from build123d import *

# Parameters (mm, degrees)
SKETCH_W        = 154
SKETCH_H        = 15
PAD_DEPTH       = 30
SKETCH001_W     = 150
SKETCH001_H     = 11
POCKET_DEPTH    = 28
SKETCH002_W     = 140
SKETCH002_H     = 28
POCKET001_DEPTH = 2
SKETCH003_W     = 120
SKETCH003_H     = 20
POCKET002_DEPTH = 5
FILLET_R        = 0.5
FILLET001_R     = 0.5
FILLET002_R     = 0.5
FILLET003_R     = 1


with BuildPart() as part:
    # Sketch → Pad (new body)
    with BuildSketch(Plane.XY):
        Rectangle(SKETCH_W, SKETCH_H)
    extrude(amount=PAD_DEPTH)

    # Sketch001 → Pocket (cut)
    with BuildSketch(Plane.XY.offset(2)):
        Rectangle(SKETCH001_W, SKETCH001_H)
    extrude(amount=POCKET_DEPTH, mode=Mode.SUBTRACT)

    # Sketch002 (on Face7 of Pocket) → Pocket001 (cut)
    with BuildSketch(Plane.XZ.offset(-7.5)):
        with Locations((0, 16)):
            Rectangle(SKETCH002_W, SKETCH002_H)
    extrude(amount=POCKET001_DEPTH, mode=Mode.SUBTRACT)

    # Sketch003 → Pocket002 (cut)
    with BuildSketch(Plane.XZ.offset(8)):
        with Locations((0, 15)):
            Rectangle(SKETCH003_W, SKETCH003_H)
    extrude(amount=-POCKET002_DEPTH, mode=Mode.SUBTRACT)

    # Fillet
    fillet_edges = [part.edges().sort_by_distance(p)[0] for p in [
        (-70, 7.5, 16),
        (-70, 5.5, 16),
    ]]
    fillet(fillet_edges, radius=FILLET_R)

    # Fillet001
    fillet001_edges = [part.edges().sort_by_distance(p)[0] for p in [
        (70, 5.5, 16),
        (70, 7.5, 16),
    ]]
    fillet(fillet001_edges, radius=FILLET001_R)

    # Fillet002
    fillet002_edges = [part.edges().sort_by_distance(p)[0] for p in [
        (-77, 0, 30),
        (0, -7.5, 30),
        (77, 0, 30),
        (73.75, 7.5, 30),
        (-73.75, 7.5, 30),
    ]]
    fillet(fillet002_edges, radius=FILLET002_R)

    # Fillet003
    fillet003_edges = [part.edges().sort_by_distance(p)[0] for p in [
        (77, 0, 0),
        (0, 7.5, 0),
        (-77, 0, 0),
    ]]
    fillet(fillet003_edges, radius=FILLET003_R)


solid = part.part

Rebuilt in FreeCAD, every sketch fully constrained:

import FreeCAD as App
import Part
import Sketcher

V = App.Vector
Q = App.Units.Quantity


def edges_at(feature, points):
    """Names of the edges that pass closest to the given points."""
    edges = feature.Shape.Edges
    near = lambda p: min(range(len(edges)), key=lambda i: edges[i].distToShape(Part.Vertex(*p))[0])
    return sorted({f"Edge{near(p) + 1}" for p in points})

doc = App.newDocument("Part")
body = doc.addObject("PartDesign::Body", "Body")

# Sketch on XY plane
sketch1 = body.newObject("Sketcher::SketchObject", "Sketch")
sketch1.AttachmentSupport = (doc.getObject("XY_Plane"), [""])
sketch1.MapMode = "FlatFace"
sketch1.addGeometry(Part.LineSegment(V(-77, 7.5, 0), V(-77, -7.5, 0)), False)
sketch1.addGeometry(Part.LineSegment(V(-77, -7.5, 0), V(77, -7.5, 0)), False)
sketch1.addGeometry(Part.LineSegment(V(77, -7.5, 0), V(77, 7.5, 0)), False)
sketch1.addGeometry(Part.LineSegment(V(77, 7.5, 0), V(-77, 7.5, 0)), False)
sketch1.addConstraint(Sketcher.Constraint("Coincident", 0, 2, 1, 1))
sketch1.addConstraint(Sketcher.Constraint("Coincident", 1, 2, 2, 1))
sketch1.addConstraint(Sketcher.Constraint("Coincident", 2, 2, 3, 1))
sketch1.addConstraint(Sketcher.Constraint("Coincident", 3, 2, 0, 1))
sketch1.addConstraint(Sketcher.Constraint("Vertical", 0))
sketch1.addConstraint(Sketcher.Constraint("Horizontal", 1))
sketch1.addConstraint(Sketcher.Constraint("Vertical", 2))
sketch1.addConstraint(Sketcher.Constraint("Horizontal", 3))
sketch1.addConstraint(Sketcher.Constraint("Symmetric", 0, 2, 2, 2, -1, 1))
sketch1.addConstraint(Sketcher.Constraint("DistanceX", 1, 1, 1, 2, Q("154 mm")))
sketch1.addConstraint(Sketcher.Constraint("DistanceY", 0, 2, 0, 1, Q("15 mm")))
pad1 = body.newObject("PartDesign::Pad", "Pad")
pad1.Profile = sketch1
pad1.Length = 30

# Sketch on XY plane
sketch2 = body.newObject("Sketcher::SketchObject", "Sketch001")
sketch2.AttachmentSupport = (doc.getObject("XY_Plane"), [""])
sketch2.MapMode = "FlatFace"
sketch2.AttachmentOffset = App.Placement(V(0, 0, 2), App.Rotation())
sketch2.addGeometry(Part.LineSegment(V(-75, 5.5, 0), V(-75, -5.5, 0)), False)
sketch2.addGeometry(Part.LineSegment(V(-75, -5.5, 0), V(75, -5.5, 0)), False)
sketch2.addGeometry(Part.LineSegment(V(75, -5.5, 0), V(75, 5.5, 0)), False)
sketch2.addGeometry(Part.LineSegment(V(75, 5.5, 0), V(-75, 5.5, 0)), False)
sketch2.addConstraint(Sketcher.Constraint("Coincident", 0, 2, 1, 1))
sketch2.addConstraint(Sketcher.Constraint("Coincident", 1, 2, 2, 1))
sketch2.addConstraint(Sketcher.Constraint("Coincident", 2, 2, 3, 1))
sketch2.addConstraint(Sketcher.Constraint("Coincident", 3, 2, 0, 1))
sketch2.addConstraint(Sketcher.Constraint("Vertical", 0))
sketch2.addConstraint(Sketcher.Constraint("Horizontal", 1))
sketch2.addConstraint(Sketcher.Constraint("Vertical", 2))
sketch2.addConstraint(Sketcher.Constraint("Horizontal", 3))
sketch2.addConstraint(Sketcher.Constraint("Symmetric", 0, 2, 2, 2, -1, 1))
sketch2.addConstraint(Sketcher.Constraint("DistanceX", 1, 1, 1, 2, Q("150 mm")))
sketch2.addConstraint(Sketcher.Constraint("DistanceY", 0, 2, 0, 1, Q("11 mm")))
pocket1 = body.newObject("PartDesign::Pocket", "Pocket")
pocket1.Profile = sketch2
pocket1.Length = 28
pocket1.Reversed = True

# Sketch on XZ plane
sketch3 = body.newObject("Sketcher::SketchObject", "Sketch002")
sketch3.AttachmentSupport = (doc.getObject("XZ_Plane"), [""])
sketch3.MapMode = "FlatFace"
sketch3.AttachmentOffset = App.Placement(V(0, 0, -7.5), App.Rotation())
sketch3.addGeometry(Part.LineSegment(V(-70, 30, 0), V(-70, 2, 0)), False)
sketch3.addGeometry(Part.LineSegment(V(-70, 2, 0), V(70, 2, 0)), False)
sketch3.addGeometry(Part.LineSegment(V(70, 2, 0), V(70, 30, 0)), False)
sketch3.addGeometry(Part.LineSegment(V(70, 30, 0), V(-70, 30, 0)), False)
sketch3.addConstraint(Sketcher.Constraint("Coincident", 0, 2, 1, 1))
sketch3.addConstraint(Sketcher.Constraint("Coincident", 1, 2, 2, 1))
sketch3.addConstraint(Sketcher.Constraint("Coincident", 2, 2, 3, 1))
sketch3.addConstraint(Sketcher.Constraint("Coincident", 3, 2, 0, 1))
sketch3.addConstraint(Sketcher.Constraint("Vertical", 0))
sketch3.addConstraint(Sketcher.Constraint("Horizontal", 1))
sketch3.addConstraint(Sketcher.Constraint("Vertical", 2))
sketch3.addConstraint(Sketcher.Constraint("Horizontal", 3))
sketch3.addConstraint(Sketcher.Constraint("DistanceX", 1, 1, 1, 2, Q("140 mm")))
sketch3.addConstraint(Sketcher.Constraint("DistanceY", 0, 2, 0, 1, Q("28 mm")))
sketch3.addConstraint(Sketcher.Constraint("DistanceX", 0, 2, -1, 1, Q("70 mm")))
sketch3.addConstraint(Sketcher.Constraint("DistanceY", -1, 1, 0, 2, Q("2 mm")))
pocket2 = body.newObject("PartDesign::Pocket", "Pocket001")
pocket2.Profile = sketch3
pocket2.Length = 2
pocket2.Reversed = True

# Sketch on XZ plane
sketch4 = body.newObject("Sketcher::SketchObject", "Sketch003")
sketch4.AttachmentSupport = (doc.getObject("XZ_Plane"), [""])
sketch4.MapMode = "FlatFace"
sketch4.AttachmentOffset = App.Placement(V(0, 0, 8), App.Rotation())
sketch4.addGeometry(Part.LineSegment(V(-60, 25, 0), V(-60, 5, 0)), False)
sketch4.addGeometry(Part.LineSegment(V(-60, 5, 0), V(60, 5, 0)), False)
sketch4.addGeometry(Part.LineSegment(V(60, 5, 0), V(60, 25, 0)), False)
sketch4.addGeometry(Part.LineSegment(V(60, 25, 0), V(-60, 25, 0)), False)
sketch4.addConstraint(Sketcher.Constraint("Coincident", 0, 2, 1, 1))
sketch4.addConstraint(Sketcher.Constraint("Coincident", 1, 2, 2, 1))
sketch4.addConstraint(Sketcher.Constraint("Coincident", 2, 2, 3, 1))
sketch4.addConstraint(Sketcher.Constraint("Coincident", 3, 2, 0, 1))
sketch4.addConstraint(Sketcher.Constraint("Vertical", 0))
sketch4.addConstraint(Sketcher.Constraint("Horizontal", 1))
sketch4.addConstraint(Sketcher.Constraint("Vertical", 2))
sketch4.addConstraint(Sketcher.Constraint("Horizontal", 3))
sketch4.addConstraint(Sketcher.Constraint("DistanceX", 1, 1, 1, 2, Q("120 mm")))
sketch4.addConstraint(Sketcher.Constraint("DistanceY", 0, 2, 0, 1, Q("20 mm")))
sketch4.addConstraint(Sketcher.Constraint("DistanceX", 0, 2, -1, 1, Q("60 mm")))
sketch4.addConstraint(Sketcher.Constraint("DistanceY", -1, 1, 0, 2, Q("5 mm")))
pocket3 = body.newObject("PartDesign::Pocket", "Pocket002")
pocket3.Profile = sketch4
pocket3.Length = 5
doc.recompute()

fillet = body.newObject("PartDesign::Fillet", "Fillet")
fillet.Base = (pocket3, edges_at(pocket3, [(-70, 7.5, 16), (-70, 5.5, 16)]))
fillet.Radius = 0.5
doc.recompute()

fillet2 = body.newObject("PartDesign::Fillet", "Fillet001")
fillet2.Base = (fillet, edges_at(fillet, [(70, 5.5, 16), (70, 7.5, 16)]))
fillet2.Radius = 0.5
doc.recompute()

fillet3 = body.newObject("PartDesign::Fillet", "Fillet002")
fillet3.Base = (fillet2, edges_at(fillet2, [
    (-77, 0, 30),
    (0, -7.5, 30),
    (77, 0, 30),
    (73.75, 7.5, 30),
    (-73.75, 7.5, 30),
]))
fillet3.Radius = 0.5
doc.recompute()

fillet4 = body.newObject("PartDesign::Fillet", "Fillet003")
fillet4.Base = (fillet3, edges_at(fillet3, [(77, 0, 0), (0, 7.5, 0), (-77, 0, 0)]))
fillet4.Radius = 1

doc.recompute()
